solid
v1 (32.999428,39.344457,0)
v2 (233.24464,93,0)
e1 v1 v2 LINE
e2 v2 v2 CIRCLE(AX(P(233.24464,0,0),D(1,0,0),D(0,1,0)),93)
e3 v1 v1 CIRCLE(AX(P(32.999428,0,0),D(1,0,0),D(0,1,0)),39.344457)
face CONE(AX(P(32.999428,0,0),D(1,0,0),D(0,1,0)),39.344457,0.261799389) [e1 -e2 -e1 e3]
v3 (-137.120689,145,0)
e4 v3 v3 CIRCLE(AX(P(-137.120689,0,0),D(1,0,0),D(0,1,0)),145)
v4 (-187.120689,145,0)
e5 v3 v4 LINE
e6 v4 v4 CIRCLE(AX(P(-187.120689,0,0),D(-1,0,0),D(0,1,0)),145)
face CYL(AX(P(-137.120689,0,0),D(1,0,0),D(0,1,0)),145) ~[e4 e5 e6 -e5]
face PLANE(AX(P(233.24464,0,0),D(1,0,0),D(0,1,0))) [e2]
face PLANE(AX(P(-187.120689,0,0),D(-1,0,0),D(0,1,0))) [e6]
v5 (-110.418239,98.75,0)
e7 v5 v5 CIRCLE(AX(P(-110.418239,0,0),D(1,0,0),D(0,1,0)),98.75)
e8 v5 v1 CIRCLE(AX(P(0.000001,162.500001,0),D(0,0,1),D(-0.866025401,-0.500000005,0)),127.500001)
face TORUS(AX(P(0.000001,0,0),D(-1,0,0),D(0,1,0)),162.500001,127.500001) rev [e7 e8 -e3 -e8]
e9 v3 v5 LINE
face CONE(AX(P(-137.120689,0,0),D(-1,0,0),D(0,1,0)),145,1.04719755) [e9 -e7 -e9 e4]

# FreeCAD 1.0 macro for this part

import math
import FreeCAD as App
import Part
import Sketcher
from FreeCAD import Vector
Q = App.Units.Quantity

doc = App.newDocument("Part")
body = doc.addObject("PartDesign::Body", "Body")

# Sketch on XY plane
sketch1 = body.newObject("Sketcher::SketchObject", "Sketch")
sketch1.AttachmentSupport = (doc.getObject("XY_Plane"), [""])
sketch1.MapMode = "FlatFace"
sketch1.addGeometry(Part.ArcOfCircle(Part.Circle(Vector(0.000001, 162.500001, 0), Vector(0, 0, 1), 127.500001), math.radians(-150), math.radians(-75.000001)), False)
sketch1.addGeometry(Part.LineSegment(Vector(-110.418239, 98.75, 0), Vector(-137.120689, 145, 0)), False)
sketch1.addGeometry(Part.LineSegment(Vector(-137.120689, 145, 0), Vector(-137.120689, 0, 0)), False)
sketch1.addGeometry(Part.LineSegment(Vector(-137.120689, 0, 0), Vector(233.24464, 0, 0)), False)
sketch1.addGeometry(Part.LineSegment(Vector(233.24464, 0, 0), Vector(233.24464, 93, 0)), False)
sketch1.addGeometry(Part.LineSegment(Vector(233.24464, 93, 0), Vector(32.999428, 39.344457, 0)), False)
sketch1.addConstraint(Sketcher.Constraint("Tangent", 0, 1, 1, 1))
sketch1.addConstraint(Sketcher.Constraint("Coincident", 1, 2, 2, 1))
sketch1.addConstraint(Sketcher.Constraint("Coincident", 2, 2, 3, 1))
sketch1.addConstraint(Sketcher.Constraint("Coincident", 3, 2, 4, 1))
sketch1.addConstraint(Sketcher.Constraint("Coincident", 4, 2, 5, 1))
sketch1.addConstraint(Sketcher.Constraint("Tangent", 5, 2, 0, 2))
sketch1.addConstraint(Sketcher.Constraint("Vertical", 2))
sketch1.addConstraint(Sketcher.Constraint("Horizontal", 3))
sketch1.addConstraint(Sketcher.Constraint("Vertical", 4))
sketch1.addConstraint(Sketcher.Constraint("PointOnObject", 0, 3, -2))
sketch1.addConstraint(Sketcher.Constraint("PointOnObject", 2, 2, -1))
sketch1.addConstraint(Sketcher.Constraint("Radius", 0, 127.500001))
sketch1.addConstraint(Sketcher.Constraint("DistanceY", 2, 2, 2, 1, 145.0))
sketch1.addConstraint(Sketcher.Constraint("DistanceY", 4, 1, 4, 2, 93.0))
sketch1.addConstraint(Sketcher.Constraint("Angle", 1, Q("120 deg")))
sketch1.addConstraint(Sketcher.Constraint("Angle", 5, Q("-165 deg")))
sketch1.addConstraint(Sketcher.Constraint("DistanceY", -1, 1, 0, 3, 162.500001))
revolution = body.newObject("PartDesign::Revolution", "Revolution")
revolution.Profile = sketch1
revolution.ReferenceAxis = (sketch1, ["H_Axis"])
revolution.Angle = 360

# Sketch on YZ plane
sketch2 = body.newObject("Sketcher::SketchObject", "Sketch001")
sketch2.AttachmentSupport = (doc.getObject("YZ_Plane"), [""])
sketch2.MapMode = "FlatFace"
sketch2.AttachmentOffset = App.Placement(Vector(0, 0, -137.120689), App.Rotation())
sketch2.addGeometry(Part.Circle(Vector(0, 0, 0), Vector(0, 0, 1), 145), False)
sketch2.addConstraint(Sketcher.Constraint("Coincident", 0, 3, -1, 1))
sketch2.addConstraint(Sketcher.Constraint("Diameter", 0, 290.0))
pad1 = body.newObject("PartDesign::Pad", "Pad")
pad1.Profile = sketch2
pad1.Length = 50
pad1.Reversed = True

doc.recompute()
